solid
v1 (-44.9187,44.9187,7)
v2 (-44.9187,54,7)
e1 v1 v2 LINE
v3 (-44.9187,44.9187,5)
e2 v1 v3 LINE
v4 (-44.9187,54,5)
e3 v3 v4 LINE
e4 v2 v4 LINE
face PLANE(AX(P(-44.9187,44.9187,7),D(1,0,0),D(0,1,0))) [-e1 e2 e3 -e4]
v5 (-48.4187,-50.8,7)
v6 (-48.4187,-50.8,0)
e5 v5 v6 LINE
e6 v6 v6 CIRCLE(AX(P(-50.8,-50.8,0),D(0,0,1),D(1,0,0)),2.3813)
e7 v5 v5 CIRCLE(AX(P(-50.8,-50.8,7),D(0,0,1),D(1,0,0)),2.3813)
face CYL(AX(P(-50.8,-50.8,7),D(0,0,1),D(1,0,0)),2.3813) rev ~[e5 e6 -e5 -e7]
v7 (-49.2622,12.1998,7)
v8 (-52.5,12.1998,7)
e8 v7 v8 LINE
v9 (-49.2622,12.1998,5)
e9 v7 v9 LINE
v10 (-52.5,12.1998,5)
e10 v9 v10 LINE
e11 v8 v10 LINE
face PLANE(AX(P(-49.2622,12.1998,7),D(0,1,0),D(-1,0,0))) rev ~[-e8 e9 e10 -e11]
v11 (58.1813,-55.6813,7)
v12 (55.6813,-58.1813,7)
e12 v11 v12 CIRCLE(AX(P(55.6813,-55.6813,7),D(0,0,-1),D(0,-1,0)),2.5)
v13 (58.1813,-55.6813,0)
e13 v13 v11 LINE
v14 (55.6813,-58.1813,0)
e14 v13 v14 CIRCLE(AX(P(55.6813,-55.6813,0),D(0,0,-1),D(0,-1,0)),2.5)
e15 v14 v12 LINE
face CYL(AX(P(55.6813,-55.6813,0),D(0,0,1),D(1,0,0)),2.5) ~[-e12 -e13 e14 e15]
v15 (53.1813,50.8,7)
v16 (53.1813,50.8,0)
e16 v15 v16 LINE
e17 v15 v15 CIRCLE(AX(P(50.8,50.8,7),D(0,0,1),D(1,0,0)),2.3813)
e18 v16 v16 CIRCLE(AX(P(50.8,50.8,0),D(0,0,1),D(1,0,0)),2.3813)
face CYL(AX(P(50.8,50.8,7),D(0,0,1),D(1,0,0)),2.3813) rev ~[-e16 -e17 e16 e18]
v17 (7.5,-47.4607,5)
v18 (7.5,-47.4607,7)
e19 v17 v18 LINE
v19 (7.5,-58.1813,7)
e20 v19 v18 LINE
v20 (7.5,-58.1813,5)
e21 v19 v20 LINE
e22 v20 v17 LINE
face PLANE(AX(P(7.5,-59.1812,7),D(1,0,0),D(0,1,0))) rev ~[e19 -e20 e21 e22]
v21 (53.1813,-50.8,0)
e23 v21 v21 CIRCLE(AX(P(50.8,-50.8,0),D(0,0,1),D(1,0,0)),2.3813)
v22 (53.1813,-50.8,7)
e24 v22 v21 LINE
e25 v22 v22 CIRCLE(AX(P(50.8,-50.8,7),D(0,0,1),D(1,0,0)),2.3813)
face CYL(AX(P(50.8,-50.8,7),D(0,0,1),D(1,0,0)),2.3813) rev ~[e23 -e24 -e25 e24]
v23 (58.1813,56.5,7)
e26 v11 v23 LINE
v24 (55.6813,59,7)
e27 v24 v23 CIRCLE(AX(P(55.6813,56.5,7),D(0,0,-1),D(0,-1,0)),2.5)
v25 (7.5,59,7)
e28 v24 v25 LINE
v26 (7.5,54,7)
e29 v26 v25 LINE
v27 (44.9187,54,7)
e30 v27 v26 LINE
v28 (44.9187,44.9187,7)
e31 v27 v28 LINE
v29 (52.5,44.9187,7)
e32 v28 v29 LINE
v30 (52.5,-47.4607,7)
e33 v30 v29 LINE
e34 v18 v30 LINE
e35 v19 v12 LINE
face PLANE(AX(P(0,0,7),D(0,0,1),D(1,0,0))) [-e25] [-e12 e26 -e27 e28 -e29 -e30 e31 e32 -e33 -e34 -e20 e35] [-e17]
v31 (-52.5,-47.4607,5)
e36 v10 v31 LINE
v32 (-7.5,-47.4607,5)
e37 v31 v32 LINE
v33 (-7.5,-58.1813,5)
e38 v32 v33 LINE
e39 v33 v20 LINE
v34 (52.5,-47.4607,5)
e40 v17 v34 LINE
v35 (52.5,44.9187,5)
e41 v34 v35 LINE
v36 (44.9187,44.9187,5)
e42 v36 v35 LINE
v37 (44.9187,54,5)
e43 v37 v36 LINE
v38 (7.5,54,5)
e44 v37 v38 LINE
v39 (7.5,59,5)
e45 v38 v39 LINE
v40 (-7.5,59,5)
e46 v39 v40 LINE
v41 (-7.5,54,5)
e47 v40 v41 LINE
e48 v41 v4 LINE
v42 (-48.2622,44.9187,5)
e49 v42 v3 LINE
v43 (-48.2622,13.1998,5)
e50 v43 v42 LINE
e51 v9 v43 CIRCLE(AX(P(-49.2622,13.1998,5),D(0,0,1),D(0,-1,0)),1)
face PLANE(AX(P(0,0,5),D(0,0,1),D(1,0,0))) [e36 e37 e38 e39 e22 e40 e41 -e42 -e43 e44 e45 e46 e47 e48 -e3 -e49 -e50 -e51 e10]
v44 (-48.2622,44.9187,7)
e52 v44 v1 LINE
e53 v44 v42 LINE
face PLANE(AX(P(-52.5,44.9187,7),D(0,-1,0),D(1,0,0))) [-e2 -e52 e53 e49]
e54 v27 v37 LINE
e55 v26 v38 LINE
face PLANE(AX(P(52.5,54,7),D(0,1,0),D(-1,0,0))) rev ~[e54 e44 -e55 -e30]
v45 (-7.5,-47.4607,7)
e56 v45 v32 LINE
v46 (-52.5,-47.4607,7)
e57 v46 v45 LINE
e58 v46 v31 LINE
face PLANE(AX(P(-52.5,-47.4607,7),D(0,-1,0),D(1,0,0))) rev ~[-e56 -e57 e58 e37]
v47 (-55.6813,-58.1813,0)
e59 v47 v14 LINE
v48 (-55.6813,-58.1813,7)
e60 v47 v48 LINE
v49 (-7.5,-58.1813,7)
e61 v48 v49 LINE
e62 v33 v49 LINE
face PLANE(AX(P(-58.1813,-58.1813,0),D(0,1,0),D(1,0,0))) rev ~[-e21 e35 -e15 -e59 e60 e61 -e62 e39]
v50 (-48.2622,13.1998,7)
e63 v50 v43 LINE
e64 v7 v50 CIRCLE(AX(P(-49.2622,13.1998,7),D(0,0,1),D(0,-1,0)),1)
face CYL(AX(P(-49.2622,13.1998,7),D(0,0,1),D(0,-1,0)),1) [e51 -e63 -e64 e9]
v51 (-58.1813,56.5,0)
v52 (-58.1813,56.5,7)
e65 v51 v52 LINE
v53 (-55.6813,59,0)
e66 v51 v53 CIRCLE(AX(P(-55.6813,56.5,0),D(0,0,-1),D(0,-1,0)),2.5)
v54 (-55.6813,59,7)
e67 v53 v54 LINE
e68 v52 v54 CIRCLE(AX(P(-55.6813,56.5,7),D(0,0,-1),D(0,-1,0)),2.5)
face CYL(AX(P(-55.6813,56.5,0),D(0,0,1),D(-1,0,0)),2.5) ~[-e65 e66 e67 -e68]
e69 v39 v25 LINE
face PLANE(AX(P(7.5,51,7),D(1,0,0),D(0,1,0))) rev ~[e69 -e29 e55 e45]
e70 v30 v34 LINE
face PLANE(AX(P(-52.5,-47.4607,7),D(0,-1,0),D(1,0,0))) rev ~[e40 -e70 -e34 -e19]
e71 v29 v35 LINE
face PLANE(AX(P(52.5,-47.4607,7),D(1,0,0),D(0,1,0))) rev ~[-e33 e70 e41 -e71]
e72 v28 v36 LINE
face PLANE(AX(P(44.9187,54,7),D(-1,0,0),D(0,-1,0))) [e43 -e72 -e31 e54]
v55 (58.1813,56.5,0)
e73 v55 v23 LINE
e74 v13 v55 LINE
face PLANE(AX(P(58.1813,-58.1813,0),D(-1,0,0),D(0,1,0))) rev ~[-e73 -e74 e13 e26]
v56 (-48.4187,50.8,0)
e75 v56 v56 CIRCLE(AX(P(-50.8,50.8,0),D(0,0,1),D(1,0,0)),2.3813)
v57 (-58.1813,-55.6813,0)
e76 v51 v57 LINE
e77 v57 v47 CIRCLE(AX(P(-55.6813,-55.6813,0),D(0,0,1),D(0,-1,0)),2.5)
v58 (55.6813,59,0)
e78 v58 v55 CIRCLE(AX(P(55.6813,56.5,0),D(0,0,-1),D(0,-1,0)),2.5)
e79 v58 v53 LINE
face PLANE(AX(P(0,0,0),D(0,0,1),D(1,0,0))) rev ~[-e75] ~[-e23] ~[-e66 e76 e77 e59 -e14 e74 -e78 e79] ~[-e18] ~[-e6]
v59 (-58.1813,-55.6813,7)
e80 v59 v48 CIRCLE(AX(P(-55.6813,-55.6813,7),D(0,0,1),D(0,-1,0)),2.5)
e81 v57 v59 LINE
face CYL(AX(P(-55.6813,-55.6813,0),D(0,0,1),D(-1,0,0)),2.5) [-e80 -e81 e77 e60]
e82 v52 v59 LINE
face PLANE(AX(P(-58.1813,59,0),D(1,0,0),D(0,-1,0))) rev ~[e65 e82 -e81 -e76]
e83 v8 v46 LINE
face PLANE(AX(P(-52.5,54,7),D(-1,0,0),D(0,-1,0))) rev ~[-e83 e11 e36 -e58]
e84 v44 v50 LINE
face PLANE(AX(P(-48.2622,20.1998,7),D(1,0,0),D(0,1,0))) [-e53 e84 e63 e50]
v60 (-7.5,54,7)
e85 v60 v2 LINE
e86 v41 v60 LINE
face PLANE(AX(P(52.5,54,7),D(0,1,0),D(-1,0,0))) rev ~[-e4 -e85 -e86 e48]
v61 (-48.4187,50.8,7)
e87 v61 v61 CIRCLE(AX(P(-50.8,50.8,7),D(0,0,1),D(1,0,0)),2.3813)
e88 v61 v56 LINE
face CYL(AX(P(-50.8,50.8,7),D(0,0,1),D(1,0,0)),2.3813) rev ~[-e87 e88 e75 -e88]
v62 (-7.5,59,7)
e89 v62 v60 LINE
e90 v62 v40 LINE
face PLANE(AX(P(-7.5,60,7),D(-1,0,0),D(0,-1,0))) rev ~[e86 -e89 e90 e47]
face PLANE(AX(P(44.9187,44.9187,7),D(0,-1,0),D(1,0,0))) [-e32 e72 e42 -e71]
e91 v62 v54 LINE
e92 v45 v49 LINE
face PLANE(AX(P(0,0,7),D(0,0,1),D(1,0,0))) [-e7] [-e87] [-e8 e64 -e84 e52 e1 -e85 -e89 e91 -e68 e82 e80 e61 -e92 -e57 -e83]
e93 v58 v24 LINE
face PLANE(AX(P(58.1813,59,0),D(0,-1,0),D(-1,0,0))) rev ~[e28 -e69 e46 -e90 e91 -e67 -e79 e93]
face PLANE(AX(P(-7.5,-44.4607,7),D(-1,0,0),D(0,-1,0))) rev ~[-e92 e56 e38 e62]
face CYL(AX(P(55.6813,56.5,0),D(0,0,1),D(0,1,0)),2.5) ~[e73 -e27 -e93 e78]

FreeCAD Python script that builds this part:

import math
import FreeCAD as App
import Part
import Sketcher
from FreeCAD import Vector


def edges_at(feature, points):
    """Names of the edges that pass closest to the given points."""
    edges = feature.Shape.Edges
    near = lambda p: min(range(len(edges)), key=lambda i: edges[i].distToShape(Part.Vertex(*p))[0])
    return sorted({f"Edge{near(p) + 1}" for p in points})

doc = App.newDocument("Part")
body = doc.addObject("PartDesign::Body", "Body")

# Sketch on XY plane
sketch1 = doc.addObject("Sketcher::SketchObject", "Sketch")
body.addObject(sketch1)
sketch1.AttachmentSupport = (doc.XY_Plane, [""])
sketch1.MapMode = "FlatFace"
sketch1.addGeometry([
    Part.LineSegment(Vector(-58, 59, 0), Vector(-58, -58, 0)),
    Part.LineSegment(Vector(-58, -58, 0), Vector(58, -58, 0)),
    Part.LineSegment(Vector(58, -58, 0), Vector(58, 59, 0)),
    Part.LineSegment(Vector(58, 59, 0), Vector(-58, 59, 0)),
], False)
sketch1.addConstraint([
    Sketcher.Constraint("Coincident", 0, 2, 1, 1),
    Sketcher.Constraint("Coincident", 1, 2, 2, 1),
    Sketcher.Constraint("Coincident", 2, 2, 3, 1),
    Sketcher.Constraint("Coincident", 3, 2, 0, 1),
    Sketcher.Constraint("Vertical", 0),
    Sketcher.Constraint("Horizontal", 1),
    Sketcher.Constraint("Vertical", 2),
    Sketcher.Constraint("Horizontal", 3),
    Sketcher.Constraint("DistanceY", -1, 1, 2, 2, 59.0),
    Sketcher.Constraint("DistanceX", 1, 1, 1, 2, 116.3626),
    Sketcher.Constraint("DistanceY", 0, 2, 0, 1, 117.1813),
    Sketcher.Constraint("DistanceX", 0, 2, -1, 1, 58.1813),
])
pad1 = doc.addObject("PartDesign::Pad", "Pad")
body.addObject(pad1)
pad1.Profile = sketch1
pad1.Length = 7
doc.recompute()

fillet = doc.addObject("PartDesign::Fillet", "Fillet")
body.addObject(fillet)
fillet.Base = (pad1, edges_at(pad1, [
    (-58.181, 59, 3.5),
    (58.181, 59, 3.5),
    (58.181, -58.181, 3.5),
    (-58.181, -58.181, 3.5),
]))
fillet.Radius = 2.5

# Sketch on XY plane
sketch2 = doc.addObject("Sketcher::SketchObject", "Sketch001")
body.addObject(sketch2)
sketch2.AttachmentSupport = (doc.XY_Plane, [""])
sketch2.MapMode = "FlatFace"
sketch2.AttachmentOffset = App.Placement(Vector(0, 0, 7), App.Rotation())
sketch2.addGeometry([
    Part.LineSegment(Vector(-52, 54, 0), Vector(-52, -47, 0)),
    Part.LineSegment(Vector(-52, -47, 0), Vector(52, -47, 0)),
    Part.LineSegment(Vector(52, -47, 0), Vector(52, 54, 0)),
    Part.LineSegment(Vector(52, 54, 0), Vector(-52, 54, 0)),
], False)
sketch2.addConstraint([
    Sketcher.Constraint("Coincident", 0, 2, 1, 1),
    Sketcher.Constraint("Coincident", 1, 2, 2, 1),
    Sketcher.Constraint("Coincident", 2, 2, 3, 1),
    Sketcher.Constraint("Coincident", 3, 2, 0, 1),
    Sketcher.Constraint("Vertical", 0),
    Sketcher.Constraint("Horizontal", 1),
    Sketcher.Constraint("Vertical", 2),
    Sketcher.Constraint("Horizontal", 3),
    Sketcher.Constraint("DistanceX", 1, 1, 1, 2, 105.0),
    Sketcher.Constraint("DistanceY", -1, 1, 2, 2, 54.0),
    Sketcher.Constraint("DistanceX", 0, 2, -1, 1, 52.5),
    Sketcher.Constraint("DistanceY", 0, 2, 0, 1, 101.4607),
])
pocket1 = doc.addObject("PartDesign::Pocket", "Pocket")
body.addObject(pocket1)
pocket1.Profile = sketch2
pocket1.Length = 2

# Sketch on XY plane
sketch3 = doc.addObject("Sketcher::SketchObject", "Sketch002")
body.addObject(sketch3)
sketch3.AttachmentSupport = (doc.XY_Plane, [""])
sketch3.MapMode = "FlatFace"
sketch3.AttachmentOffset = App.Placement(Vector(0, 0, 7), App.Rotation())
sketch3.addGeometry([
    Part.LineSegment(Vector(-8, -44, 0), Vector(-8, -59, 0)),
    Part.LineSegment(Vector(-8, -59, 0), Vector(8, -59, 0)),
    Part.LineSegment(Vector(8, -59, 0), Vector(8, -44, 0)),
    Part.LineSegment(Vector(8, -44, 0), Vector(-8, -44, 0)),
], False)
sketch3.addConstraint([
    Sketcher.Constraint("Coincident", 0, 2, 1, 1),
    Sketcher.Constraint("Coincident", 1, 2, 2, 1),
    Sketcher.Constraint("Coincident", 2, 2, 3, 1),
    Sketcher.Constraint("Coincident", 3, 2, 0, 1),
    Sketcher.Constraint("Vertical", 0),
    Sketcher.Constraint("Horizontal", 1),
    Sketcher.Constraint("Vertical", 2),
    Sketcher.Constraint("Horizontal", 3),
    Sketcher.Constraint("DistanceX", 1, 1, 1, 2, 15.0),
    Sketcher.Constraint("DistanceX", 0, 2, -1, 1, 7.5),
    Sketcher.Constraint("DistanceY", 0, 2, 0, 1, 14.7205),
    Sketcher.Constraint("DistanceY", 0, 2, -1, 1, 59.1812),
])
pocket2 = doc.addObject("PartDesign::Pocket", "Pocket001")
body.addObject(pocket2)
pocket2.Profile = sketch3
pocket2.Length = 2

# Sketch on XY plane
sketch4 = doc.addObject("Sketcher::SketchObject", "Sketch003")
body.addObject(sketch4)
sketch4.AttachmentSupport = (doc.XY_Plane, [""])
sketch4.MapMode = "FlatFace"
sketch4.AttachmentOffset = App.Placement(Vector(0, 0, 7), App.Rotation())
sketch4.addGeometry([
    Part.LineSegment(Vector(-8, 60, 0), Vector(-8, 51, 0)),
    Part.LineSegment(Vector(-8, 51, 0), Vector(8, 51, 0)),
    Part.LineSegment(Vector(8, 51, 0), Vector(8, 60, 0)),
    Part.LineSegment(Vector(8, 60, 0), Vector(-8, 60, 0)),
], False)
sketch4.addConstraint([
    Sketcher.Constraint("Coincident", 0, 2, 1, 1),
    Sketcher.Constraint("Coincident", 1, 2, 2, 1),
    Sketcher.Constraint("Coincident", 2, 2, 3, 1),
    Sketcher.Constraint("Coincident", 3, 2, 0, 1),
    Sketcher.Constraint("Vertical", 0),
    Sketcher.Constraint("Horizontal", 1),
    Sketcher.Constraint("Vertical", 2),
    Sketcher.Constraint("Horizontal", 3),
    Sketcher.Constraint("DistanceX", 1, 1, 1, 2, 15.0),
    Sketcher.Constraint("DistanceY", 0, 2, 0, 1, 9.0),
    Sketcher.Constraint("DistanceY", -1, 1, 0, 2, 51.0),
    Sketcher.Constraint("DistanceX", 0, 2, -1, 1, 7.5),
])
pocket3 = doc.addObject("PartDesign::Pocket", "Pocket002")
body.addObject(pocket3)
pocket3.Profile = sketch4
pocket3.Length = 2

# Sketch on XY plane
sketch5 = doc.addObject("Sketcher::SketchObject", "Sketch004")
body.addObject(sketch5)
sketch5.AttachmentSupport = (doc.XY_Plane, [""])
sketch5.MapMode = "FlatFace"
sketch5.AttachmentOffset = App.Placement(Vector(0, 0, 7), App.Rotation())
sketch5.addGeometry([
    Part.LineSegment(Vector(-48.3, 20.2, 0), Vector(-56.3, 20.2, 0)),  # 0
    Part.LineSegment(Vector(-56.3, 20.2, 0), Vector(-56.3, 12.2, 0)),  # 1
    Part.LineSegment(Vector(-56.3, 12.2, 0), Vector(-49.3, 12.2, 0)),  # 2
    Part.ArcOfCircle(Part.Circle(Vector(-49.3, 13.2, 0), Vector(0, 0, 1), 1), math.radians(-90), math.radians(0)),  # 3
    Part.LineSegment(Vector(-48.3, 13.2, 0), Vector(-48.3, 20.2, 0)),  # 4
], False)
sketch5.addConstraint([
    Sketcher.Constraint("Coincident", 0, 2, 1, 1),
    Sketcher.Constraint("Coincident", 1, 2, 2, 1),
    Sketcher.Constraint("Tangent", 2, 2, 3, 1),
    Sketcher.Constraint("Tangent", 3, 2, 4, 1),
    Sketcher.Constraint("Coincident", 4, 2, 0, 1),
    Sketcher.Constraint("Horizontal", 0),
    Sketcher.Constraint("Vertical", 1),
    Sketcher.Constraint("Horizontal", 2),
    Sketcher.Constraint("Vertical", 4),
    Sketcher.Constraint("Equal", 0, 1),
    Sketcher.Constraint("Radius", 3, 1.0),
    Sketcher.Constraint("DistanceX", 0, 2, 0, 1, 8.0),
    Sketcher.Constraint("DistanceX", 3, 3, -1, 1, 49.2622),
    Sketcher.Constraint("DistanceY", -1, 1, 3, 3, 13.1998),
])
pad2 = doc.addObject("PartDesign::Pad", "Pad001")
body.addObject(pad2)
pad2.Profile = sketch5
pad2.Length = 2
pad2.Reversed = True

# Sketch on XY plane
sketch6 = doc.addObject("Sketcher::SketchObject", "Sketch005")
body.addObject(sketch6)
sketch6.AttachmentSupport = (doc.XY_Plane, [""])
sketch6.MapMode = "FlatFace"
sketch6.AttachmentOffset = App.Placement(Vector(0, 0, 7), App.Rotation())
sketch6.addGeometry([
    Part.LineSegment(Vector(-52.5, 54, 0), Vector(-52.5, 20.2, 0)),
    Part.LineSegment(Vector(-52.5, 20.2, 0), Vector(-48.3, 20.2, 0)),
    Part.LineSegment(Vector(-48.3, 20.2, 0), Vector(-48.3, 54, 0)),
    Part.LineSegment(Vector(-48.3, 54, 0), Vector(-52.5, 54, 0)),
], False)
sketch6.addConstraint([
    Sketcher.Constraint("Coincident", 0, 2, 1, 1),
    Sketcher.Constraint("Coincident", 1, 2, 2, 1),
    Sketcher.Constraint("Coincident", 2, 2, 3, 1),
    Sketcher.Constraint("Coincident", 3, 2, 0, 1),
    Sketcher.Constraint("Vertical", 0),
    Sketcher.Constraint("Horizontal", 1),
    Sketcher.Constraint("Vertical", 2),
    Sketcher.Constraint("Horizontal", 3),
    Sketcher.Constraint("DistanceY", -1, 1, 2, 2, 54.0),
    Sketcher.Constraint("DistanceX", 0, 2, -1, 1, 52.5),
    Sketcher.Constraint("DistanceX", 1, 1, 1, 2, 4.2378),
    Sketcher.Constraint("DistanceY", 0, 2, 0, 1, 33.8002),
])
pad3 = doc.addObject("PartDesign::Pad", "Pad002")
body.addObject(pad3)
pad3.Profile = sketch6
pad3.Length = 2
pad3.Reversed = True

# Sketch on XY plane
sketch7 = doc.addObject("Sketcher::SketchObject", "Sketch006")
body.addObject(sketch7)
sketch7.AttachmentSupport = (doc.XY_Plane, [""])
sketch7.MapMode = "FlatFace"
sketch7.AttachmentOffset = App.Placement(Vector(0, 0, 7), App.Rotation())
sketch7.addGeometry([
    Part.LineSegment(Vector(-52, 54, 0), Vector(-52, 45, 0)),
    Part.LineSegment(Vector(-52, 45, 0), Vector(-45, 45, 0)),
    Part.LineSegment(Vector(-45, 45, 0), Vector(-45, 54, 0)),
    Part.LineSegment(Vector(-45, 54, 0), Vector(-52, 54, 0)),
], False)
sketch7.addConstraint([
    Sketcher.Constraint("Coincident", 0, 2, 1, 1),
    Sketcher.Constraint("Coincident", 1, 2, 2, 1),
    Sketcher.Constraint("Coincident", 2, 2, 3, 1),
    Sketcher.Constraint("Coincident", 3, 2, 0, 1),
    Sketcher.Constraint("Vertical", 0),
    Sketcher.Constraint("Horizontal", 1),
    Sketcher.Constraint("Vertical", 2),
    Sketcher.Constraint("Horizontal", 3),
    Sketcher.Constraint("DistanceY", -1, 1, 2, 2, 54.0),
    Sketcher.Constraint("DistanceX", 0, 2, -1, 1, 52.5),
    Sketcher.Constraint("DistanceX", 1, 1, 1, 2, 7.5813),
    Sketcher.Constraint("DistanceY", 0, 2, 0, 1, 9.0813),
])
pad4 = doc.addObject("PartDesign::Pad", "Pad003")
body.addObject(pad4)
pad4.Profile = sketch7
pad4.Length = 2
pad4.Reversed = True

# Sketch on XY plane
sketch8 = doc.addObject("Sketcher::SketchObject", "Sketch007")
body.addObject(sketch8)
sketch8.AttachmentSupport = (doc.XY_Plane, [""])
sketch8.MapMode = "FlatFace"
sketch8.AttachmentOffset = App.Placement(Vector(0, 0, 7), App.Rotation())
sketch8.addGeometry([
    Part.LineSegment(Vector(45, 54, 0), Vector(45, 45, 0)),
    Part.LineSegment(Vector(45, 45, 0), Vector(52, 45, 0)),
    Part.LineSegment(Vector(52, 45, 0), Vector(52, 54, 0)),
    Part.LineSegment(Vector(52, 54, 0), Vector(45, 54, 0)),
], False)
sketch8.addConstraint([
    Sketcher.Constraint("Coincident", 0, 2, 1, 1),
    Sketcher.Constraint("Coincident", 1, 2, 2, 1),
    Sketcher.Constraint("Coincident", 2, 2, 3, 1),
    Sketcher.Constraint("Coincident", 3, 2, 0, 1),
    Sketcher.Constraint("Vertical", 0),
    Sketcher.Constraint("Horizontal", 1),
    Sketcher.Constraint("Vertical", 2),
    Sketcher.Constraint("Horizontal", 3),
    Sketcher.Constraint("DistanceY", -1, 1, 2, 2, 54.0),
    Sketcher.Constraint("DistanceX", -1, 1, 1, 2, 52.5),
    Sketcher.Constraint("DistanceX", 1, 1, 1, 2, 7.5813),
    Sketcher.Constraint("DistanceY", 0, 2, 0, 1, 9.0813),
])
pad5 = doc.addObject("PartDesign::Pad", "Pad004")
body.addObject(pad5)
pad5.Profile = sketch8
pad5.Length = 2
pad5.Reversed = True

# Sketch on XY plane
sketch9 = doc.addObject("Sketcher::SketchObject", "Sketch008")
body.addObject(sketch9)
sketch9.AttachmentSupport = (doc.XY_Plane, [""])
sketch9.MapMode = "FlatFace"
sketch9.AttachmentOffset = App.Placement(Vector(0, 0, 7), App.Rotation())
sketch9.addGeometry(Part.Circle(Vector(-50.8, -50.8, 0), Vector(0, 0, 1), 2.4), False)
sketch9.addConstraint([
    Sketcher.Constraint("Diameter", 0, 4.7626),
    Sketcher.Constraint("DistanceX", 0, 3, -1, 1, 50.8),
    Sketcher.Constraint("DistanceY", 0, 3, -1, 1, 50.8),
])
pocket4 = doc.addObject("PartDesign::Pocket", "Pocket003")
body.addObject(pocket4)
pocket4.Profile = sketch9
pocket4.Length = 7

# Sketch on XY plane
sketch10 = doc.addObject("Sketcher::SketchObject", "Sketch009")
body.addObject(sketch10)
sketch10.AttachmentSupport = (doc.XY_Plane, [""])
sketch10.MapMode = "FlatFace"
sketch10.AttachmentOffset = App.Placement(Vector(0, 0, 7), App.Rotation())
sketch10.addGeometry(Part.Circle(Vector(50.8, -50.8, 0), Vector(0, 0, 1), 2.4), False)
sketch10.addConstraint([
    Sketcher.Constraint("Diameter", 0, 4.7626),
    Sketcher.Constraint("DistanceX", -1, 1, 0, 3, 50.8),
    Sketcher.Constraint("DistanceY", 0, 3, -1, 1, 50.8),
])
pocket5 = doc.addObject("PartDesign::Pocket", "Pocket004")
body.addObject(pocket5)
pocket5.Profile = sketch10
pocket5.Length = 7

# Sketch on XY plane
sketch11 = doc.addObject("Sketcher::SketchObject", "Sketch010")
body.addObject(sketch11)
sketch11.AttachmentSupport = (doc.XY_Plane, [""])
sketch11.MapMode = "FlatFace"
sketch11.AttachmentOffset = App.Placement(Vector(0, 0, 7), App.Rotation())
sketch11.addGeometry(Part.Circle(Vector(-50.8, 50.8, 0), Vector(0, 0, 1), 2.4), False)
sketch11.addConstraint([
    Sketcher.Constraint("Diameter", 0, 4.7626),
    Sketcher.Constraint("DistanceX", 0, 3, -1, 1, 50.8),
    Sketcher.Constraint("DistanceY", -1, 1, 0, 3, 50.8),
])
pocket6 = doc.addObject("PartDesign::Pocket", "Pocket005")
body.addObject(pocket6)
pocket6.Profile = sketch11
pocket6.Length = 7

# Sketch on XY plane
sketch12 = doc.addObject("Sketcher::SketchObject", "Sketch011")
body.addObject(sketch12)
sketch12.AttachmentSupport = (doc.XY_Plane, [""])
sketch12.MapMode = "FlatFace"
sketch12.AttachmentOffset = App.Placement(Vector(0, 0, 7), App.Rotation())
sketch12.addGeometry(Part.Circle(Vector(50.8, 50.8, 0), Vector(0, 0, 1), 2.4), False)
sketch12.addConstraint([
    Sketcher.Constraint("Diameter", 0, 4.7626),
    Sketcher.Constraint("DistanceX", -1, 1, 0, 3, 50.8),
    Sketcher.Constraint("DistanceY", -1, 1, 0, 3, 50.8),
])
pocket7 = doc.addObject("PartDesign::Pocket", "Pocket006")
body.addObject(pocket7)
pocket7.Profile = sketch12
pocket7.Length = 7

doc.recompute()
